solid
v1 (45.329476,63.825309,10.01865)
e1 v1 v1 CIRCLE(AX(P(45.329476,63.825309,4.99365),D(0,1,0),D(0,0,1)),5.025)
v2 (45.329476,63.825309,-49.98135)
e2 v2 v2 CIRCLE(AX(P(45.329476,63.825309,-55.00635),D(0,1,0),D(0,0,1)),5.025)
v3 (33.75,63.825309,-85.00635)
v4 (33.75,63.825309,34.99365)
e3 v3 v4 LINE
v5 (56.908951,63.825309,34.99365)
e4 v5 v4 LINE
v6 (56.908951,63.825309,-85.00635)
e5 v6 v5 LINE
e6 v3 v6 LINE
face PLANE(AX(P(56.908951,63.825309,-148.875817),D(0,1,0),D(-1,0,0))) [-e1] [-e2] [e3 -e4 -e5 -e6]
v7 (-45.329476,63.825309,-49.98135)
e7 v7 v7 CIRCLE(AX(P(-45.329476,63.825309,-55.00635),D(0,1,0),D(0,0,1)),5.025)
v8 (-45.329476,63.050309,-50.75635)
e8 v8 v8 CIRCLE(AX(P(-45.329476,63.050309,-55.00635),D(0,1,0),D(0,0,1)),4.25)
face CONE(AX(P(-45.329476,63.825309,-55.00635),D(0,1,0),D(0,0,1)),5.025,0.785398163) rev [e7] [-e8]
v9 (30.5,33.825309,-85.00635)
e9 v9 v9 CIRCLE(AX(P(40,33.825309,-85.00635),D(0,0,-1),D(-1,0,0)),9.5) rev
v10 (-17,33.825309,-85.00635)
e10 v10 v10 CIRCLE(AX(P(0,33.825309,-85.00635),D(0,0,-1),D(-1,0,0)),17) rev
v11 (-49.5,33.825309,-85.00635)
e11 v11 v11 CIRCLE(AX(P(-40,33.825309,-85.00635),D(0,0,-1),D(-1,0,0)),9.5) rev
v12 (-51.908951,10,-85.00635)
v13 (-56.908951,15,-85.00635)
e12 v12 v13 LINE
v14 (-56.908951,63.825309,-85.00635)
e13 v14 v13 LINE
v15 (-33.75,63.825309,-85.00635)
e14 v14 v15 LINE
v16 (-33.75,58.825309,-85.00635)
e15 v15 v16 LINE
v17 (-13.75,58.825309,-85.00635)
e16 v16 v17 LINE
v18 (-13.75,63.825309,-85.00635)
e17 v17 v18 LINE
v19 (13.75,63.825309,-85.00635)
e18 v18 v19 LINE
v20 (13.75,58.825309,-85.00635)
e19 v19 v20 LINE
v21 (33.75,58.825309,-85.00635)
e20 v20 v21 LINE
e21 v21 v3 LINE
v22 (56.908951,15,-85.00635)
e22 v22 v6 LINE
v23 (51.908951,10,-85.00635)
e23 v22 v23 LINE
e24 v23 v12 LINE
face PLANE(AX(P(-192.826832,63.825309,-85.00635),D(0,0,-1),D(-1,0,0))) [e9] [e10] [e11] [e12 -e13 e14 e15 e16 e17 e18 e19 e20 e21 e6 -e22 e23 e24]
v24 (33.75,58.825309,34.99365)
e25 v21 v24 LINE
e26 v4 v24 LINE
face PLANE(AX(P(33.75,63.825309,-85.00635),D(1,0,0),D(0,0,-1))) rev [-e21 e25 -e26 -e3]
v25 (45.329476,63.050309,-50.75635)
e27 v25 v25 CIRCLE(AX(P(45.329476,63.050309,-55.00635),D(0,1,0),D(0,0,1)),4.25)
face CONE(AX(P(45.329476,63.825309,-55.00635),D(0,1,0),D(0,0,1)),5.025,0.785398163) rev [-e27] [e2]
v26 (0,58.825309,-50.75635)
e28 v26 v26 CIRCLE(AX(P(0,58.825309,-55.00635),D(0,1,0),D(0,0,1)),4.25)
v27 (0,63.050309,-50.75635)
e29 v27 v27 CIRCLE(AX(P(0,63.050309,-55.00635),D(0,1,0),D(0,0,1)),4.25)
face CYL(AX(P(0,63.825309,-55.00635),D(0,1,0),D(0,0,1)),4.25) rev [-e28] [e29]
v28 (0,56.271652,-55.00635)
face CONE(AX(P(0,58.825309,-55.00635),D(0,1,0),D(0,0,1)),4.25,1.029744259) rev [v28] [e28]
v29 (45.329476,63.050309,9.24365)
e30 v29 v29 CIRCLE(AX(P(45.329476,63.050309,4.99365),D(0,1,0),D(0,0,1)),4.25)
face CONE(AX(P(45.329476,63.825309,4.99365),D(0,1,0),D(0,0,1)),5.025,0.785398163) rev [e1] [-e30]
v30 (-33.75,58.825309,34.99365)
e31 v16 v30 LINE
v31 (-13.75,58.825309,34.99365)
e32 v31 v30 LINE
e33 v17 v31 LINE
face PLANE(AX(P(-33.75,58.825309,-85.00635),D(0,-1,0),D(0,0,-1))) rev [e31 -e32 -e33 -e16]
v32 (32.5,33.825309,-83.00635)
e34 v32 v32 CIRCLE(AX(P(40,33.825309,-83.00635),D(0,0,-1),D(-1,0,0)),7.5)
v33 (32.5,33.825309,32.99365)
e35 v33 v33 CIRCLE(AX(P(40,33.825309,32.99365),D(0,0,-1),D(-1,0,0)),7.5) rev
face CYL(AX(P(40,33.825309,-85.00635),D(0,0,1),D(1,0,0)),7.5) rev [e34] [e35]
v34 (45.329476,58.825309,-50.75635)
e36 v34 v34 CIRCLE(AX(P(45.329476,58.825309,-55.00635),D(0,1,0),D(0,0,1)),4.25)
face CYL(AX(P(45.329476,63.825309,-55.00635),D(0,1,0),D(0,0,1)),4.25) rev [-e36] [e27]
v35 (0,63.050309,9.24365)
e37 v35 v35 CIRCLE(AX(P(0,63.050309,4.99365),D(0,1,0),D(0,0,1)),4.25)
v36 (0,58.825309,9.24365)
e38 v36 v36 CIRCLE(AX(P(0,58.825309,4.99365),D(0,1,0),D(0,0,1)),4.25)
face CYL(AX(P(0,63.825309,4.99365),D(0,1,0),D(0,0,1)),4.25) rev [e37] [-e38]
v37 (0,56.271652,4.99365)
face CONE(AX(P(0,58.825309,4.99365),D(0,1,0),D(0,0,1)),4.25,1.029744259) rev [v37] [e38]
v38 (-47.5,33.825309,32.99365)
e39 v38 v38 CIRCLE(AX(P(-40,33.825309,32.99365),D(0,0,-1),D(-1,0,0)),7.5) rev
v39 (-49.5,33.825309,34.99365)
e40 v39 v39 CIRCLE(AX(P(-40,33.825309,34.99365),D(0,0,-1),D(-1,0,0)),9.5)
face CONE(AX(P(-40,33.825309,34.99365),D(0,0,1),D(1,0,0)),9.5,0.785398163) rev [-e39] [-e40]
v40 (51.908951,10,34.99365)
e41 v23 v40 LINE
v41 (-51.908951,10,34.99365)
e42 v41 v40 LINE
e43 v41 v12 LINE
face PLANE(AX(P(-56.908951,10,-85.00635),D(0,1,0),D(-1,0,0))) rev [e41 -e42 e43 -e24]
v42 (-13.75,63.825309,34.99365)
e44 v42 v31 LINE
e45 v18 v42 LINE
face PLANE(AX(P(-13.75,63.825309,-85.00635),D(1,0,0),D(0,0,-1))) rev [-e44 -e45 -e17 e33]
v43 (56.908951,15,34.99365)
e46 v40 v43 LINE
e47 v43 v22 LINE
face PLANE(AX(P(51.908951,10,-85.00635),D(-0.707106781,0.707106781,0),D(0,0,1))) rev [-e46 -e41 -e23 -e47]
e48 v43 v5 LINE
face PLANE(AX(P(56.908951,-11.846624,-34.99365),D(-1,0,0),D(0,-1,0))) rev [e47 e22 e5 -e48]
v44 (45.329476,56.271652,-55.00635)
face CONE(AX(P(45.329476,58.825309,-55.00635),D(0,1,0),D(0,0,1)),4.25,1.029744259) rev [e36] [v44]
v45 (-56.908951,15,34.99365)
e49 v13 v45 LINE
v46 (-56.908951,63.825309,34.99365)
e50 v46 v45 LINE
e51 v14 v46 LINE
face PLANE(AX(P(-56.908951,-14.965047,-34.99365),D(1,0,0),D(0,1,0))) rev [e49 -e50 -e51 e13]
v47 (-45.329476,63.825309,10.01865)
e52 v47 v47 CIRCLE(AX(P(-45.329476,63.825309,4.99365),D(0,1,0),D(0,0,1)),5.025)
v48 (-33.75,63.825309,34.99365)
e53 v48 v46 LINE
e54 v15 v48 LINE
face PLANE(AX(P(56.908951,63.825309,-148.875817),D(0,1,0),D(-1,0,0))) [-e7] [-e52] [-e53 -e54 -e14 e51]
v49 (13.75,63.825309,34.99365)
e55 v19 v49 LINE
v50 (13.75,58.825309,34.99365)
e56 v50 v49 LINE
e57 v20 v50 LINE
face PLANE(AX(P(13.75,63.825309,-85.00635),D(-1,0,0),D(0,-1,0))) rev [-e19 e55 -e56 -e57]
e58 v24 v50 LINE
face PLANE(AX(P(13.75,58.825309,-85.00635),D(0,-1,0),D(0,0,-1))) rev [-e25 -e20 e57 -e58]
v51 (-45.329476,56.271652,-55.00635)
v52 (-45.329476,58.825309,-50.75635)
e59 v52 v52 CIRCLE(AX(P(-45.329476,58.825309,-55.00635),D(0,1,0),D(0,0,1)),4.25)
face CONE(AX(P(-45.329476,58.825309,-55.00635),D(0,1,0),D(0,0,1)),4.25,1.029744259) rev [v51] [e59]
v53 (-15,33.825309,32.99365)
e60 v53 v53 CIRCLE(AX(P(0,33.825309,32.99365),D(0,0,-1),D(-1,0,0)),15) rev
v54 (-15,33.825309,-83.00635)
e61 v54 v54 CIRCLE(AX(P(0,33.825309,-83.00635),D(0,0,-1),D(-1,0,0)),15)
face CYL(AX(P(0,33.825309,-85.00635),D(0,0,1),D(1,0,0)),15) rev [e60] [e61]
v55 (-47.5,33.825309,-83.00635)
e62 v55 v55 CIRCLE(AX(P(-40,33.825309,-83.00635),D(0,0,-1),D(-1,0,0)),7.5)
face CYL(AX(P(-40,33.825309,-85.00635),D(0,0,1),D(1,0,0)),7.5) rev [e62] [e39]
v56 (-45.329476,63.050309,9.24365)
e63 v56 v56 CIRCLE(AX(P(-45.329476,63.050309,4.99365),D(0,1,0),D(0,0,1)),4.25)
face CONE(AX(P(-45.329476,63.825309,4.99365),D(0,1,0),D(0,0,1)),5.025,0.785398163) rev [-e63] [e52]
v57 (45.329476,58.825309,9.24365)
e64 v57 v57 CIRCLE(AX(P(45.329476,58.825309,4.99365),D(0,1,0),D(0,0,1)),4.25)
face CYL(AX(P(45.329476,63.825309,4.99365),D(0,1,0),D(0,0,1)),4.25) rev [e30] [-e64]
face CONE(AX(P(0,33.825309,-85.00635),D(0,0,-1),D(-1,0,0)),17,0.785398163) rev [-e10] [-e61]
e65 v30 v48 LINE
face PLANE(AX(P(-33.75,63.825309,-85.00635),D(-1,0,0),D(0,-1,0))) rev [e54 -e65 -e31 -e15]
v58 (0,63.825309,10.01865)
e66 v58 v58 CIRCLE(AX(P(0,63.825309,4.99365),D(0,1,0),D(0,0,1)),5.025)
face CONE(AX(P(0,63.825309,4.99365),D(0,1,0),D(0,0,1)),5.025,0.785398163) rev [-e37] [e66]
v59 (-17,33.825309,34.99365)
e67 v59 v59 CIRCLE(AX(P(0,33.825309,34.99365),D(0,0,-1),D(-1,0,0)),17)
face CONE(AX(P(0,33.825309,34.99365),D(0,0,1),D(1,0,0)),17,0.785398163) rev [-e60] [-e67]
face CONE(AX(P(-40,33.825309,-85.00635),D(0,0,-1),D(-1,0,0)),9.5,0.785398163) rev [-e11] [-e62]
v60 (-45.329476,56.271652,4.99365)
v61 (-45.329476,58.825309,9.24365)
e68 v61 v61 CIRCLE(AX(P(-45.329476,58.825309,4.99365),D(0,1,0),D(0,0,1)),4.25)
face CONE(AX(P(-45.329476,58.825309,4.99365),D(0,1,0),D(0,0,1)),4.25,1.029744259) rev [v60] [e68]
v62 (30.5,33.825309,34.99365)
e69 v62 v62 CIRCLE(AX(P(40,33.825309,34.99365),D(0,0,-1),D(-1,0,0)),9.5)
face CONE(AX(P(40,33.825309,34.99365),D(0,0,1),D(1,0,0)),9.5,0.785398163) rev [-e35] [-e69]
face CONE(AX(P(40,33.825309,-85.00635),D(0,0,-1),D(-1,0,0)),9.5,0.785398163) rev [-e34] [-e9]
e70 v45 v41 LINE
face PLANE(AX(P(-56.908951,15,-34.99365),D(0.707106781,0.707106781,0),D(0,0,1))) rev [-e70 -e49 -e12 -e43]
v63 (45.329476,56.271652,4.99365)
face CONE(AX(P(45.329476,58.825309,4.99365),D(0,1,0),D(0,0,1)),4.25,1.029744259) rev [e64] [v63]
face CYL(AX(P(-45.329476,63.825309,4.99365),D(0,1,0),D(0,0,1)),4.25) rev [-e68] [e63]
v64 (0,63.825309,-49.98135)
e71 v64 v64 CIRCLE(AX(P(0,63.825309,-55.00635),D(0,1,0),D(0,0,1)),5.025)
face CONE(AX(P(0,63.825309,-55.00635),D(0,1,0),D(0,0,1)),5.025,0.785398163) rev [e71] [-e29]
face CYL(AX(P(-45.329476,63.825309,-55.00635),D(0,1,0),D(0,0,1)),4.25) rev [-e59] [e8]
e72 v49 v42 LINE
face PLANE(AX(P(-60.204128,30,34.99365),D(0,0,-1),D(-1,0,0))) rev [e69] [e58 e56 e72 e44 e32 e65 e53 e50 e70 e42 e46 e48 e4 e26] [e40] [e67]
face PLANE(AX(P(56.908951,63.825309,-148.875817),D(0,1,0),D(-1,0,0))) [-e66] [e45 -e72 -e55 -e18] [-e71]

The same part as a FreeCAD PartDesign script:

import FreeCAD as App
import Part
import Sketcher
from FreeCAD import Vector


def edges_at(feature, points):
    """Names of the edges that pass closest to the given points."""
    edges = feature.Shape.Edges
    near = lambda p: min(range(len(edges)), key=lambda i: edges[i].distToShape(Part.Vertex(*p))[0])
    return sorted({f"Edge{near(p) + 1}" for p in points})

doc = App.newDocument("Part")
body = doc.addObject("PartDesign::Body", "Body")

# Sketch on XZ plane
sketch1 = body.newObject("Sketcher::SketchObject", "Sketch")
sketch1.AttachmentSupport = (doc.getObject("XZ_Plane"), [""])
sketch1.MapMode = "FlatFace"
sketch1.addGeometry([
    Part.LineSegment(Vector(-60, -35, 0), Vector(-60, 35, 0)),
    Part.LineSegment(Vector(-60, 35, 0), Vector(60, 35, 0)),
    Part.LineSegment(Vector(60, 35, 0), Vector(60, -35, 0)),
    Part.LineSegment(Vector(60, -35, 0), Vector(-60, -35, 0)),
], False)
sketch1.addConstraint([
    Sketcher.Constraint("Coincident", 0, 2, 1, 1),
    Sketcher.Constraint("Coincident", 1, 2, 2, 1),
    Sketcher.Constraint("Coincident", 2, 2, 3, 1),
    Sketcher.Constraint("Coincident", 3, 2, 0, 1),
    Sketcher.Constraint("Vertical", 0),
    Sketcher.Constraint("Horizontal", 1),
    Sketcher.Constraint("Vertical", 2),
    Sketcher.Constraint("Horizontal", 3),
    Sketcher.Constraint("Symmetric", 0, 2, 2, 2, -1, 1),
    Sketcher.Constraint("DistanceY", 0, 1, 0, 2, 69.987299),
    Sketcher.Constraint("DistanceX", 1, 1, 1, 2, 120.408257),
])
pad1 = body.newObject("PartDesign::Pad", "Pad")
pad1.Profile = sketch1
pad1.Length = 30
pad1.Reversed = True

# Sketch on XY plane
sketch2 = body.newObject("Sketcher::SketchObject", "Sketch001")
sketch2.AttachmentSupport = (doc.getObject("XY_Plane"), [""])
sketch2.MapMode = "FlatFace"
sketch2.AttachmentOffset = App.Placement(Vector(0, 0, 34.99365), App.Rotation())
sketch2.addGeometry([
    Part.LineSegment(Vector(-66, 34, 0), Vector(-66, -15, 0)),  # 0
    Part.LineSegment(Vector(-66, -15, 0), Vector(-57, -15, 0)),  # 1
    Part.LineSegment(Vector(-57, -15, 0), Vector(-57, 34, 0)),  # 2
    Part.LineSegment(Vector(-57, 34, 0), Vector(-66, 34, 0)),  # 3
    Part.LineSegment(Vector(57, 34, 0), Vector(57, -12, 0)),  # 4
    Part.LineSegment(Vector(57, -12, 0), Vector(63, -12, 0)),  # 5
    Part.LineSegment(Vector(63, -12, 0), Vector(64, 34, 0)),  # 6
    Part.LineSegment(Vector(64, 34, 0), Vector(57, 34, 0)),  # 7
], False)
sketch2.addConstraint([
    Sketcher.Constraint("Coincident", 0, 2, 1, 1),
    Sketcher.Constraint("Coincident", 1, 2, 2, 1),
    Sketcher.Constraint("Coincident", 2, 2, 3, 1),
    Sketcher.Constraint("Coincident", 3, 2, 0, 1),
    Sketcher.Constraint("Coincident", 4, 2, 5, 1),
    Sketcher.Constraint("Coincident", 5, 2, 6, 1),
    Sketcher.Constraint("Coincident", 6, 2, 7, 1),
    Sketcher.Constraint("Coincident", 7, 2, 4, 1),
    Sketcher.Constraint("Vertical", 0),
    Sketcher.Constraint("Horizontal", 1),
    Sketcher.Constraint("Vertical", 2),
    Sketcher.Constraint("Horizontal", 3),
    Sketcher.Constraint("Vertical", 4),
    Sketcher.Constraint("Horizontal", 5),
    Sketcher.Constraint("Horizontal", 7),
    Sketcher.Constraint("Symmetric", 2, 2, 7, 2, -2),
    Sketcher.Constraint("DistanceY", 0, 2, 0, 1, 48.745872),
    Sketcher.Constraint("DistanceY", 4, 2, 4, 1, 45.627449),
    Sketcher.Constraint("DistanceX", 1, 1, 1, 2, 9.395516),
    Sketcher.Constraint("DistanceX", 5, 1, 5, 2, 6.004442),
    Sketcher.Constraint("DistanceX", 7, 2, 7, 1, 6.775573),
    Sketcher.Constraint("DistanceX", 1, 2, -1, 1, 56.908951),
    Sketcher.Constraint("DistanceY", 0, 2, -1, 1, 14.965047),
])
pocket1 = body.newObject("PartDesign::Pocket", "Pocket")
pocket1.Profile = sketch2
pocket1.Type = "ThroughAll"
pocket1.Midplane = True

# Sketch on XY plane
sketch3 = body.newObject("Sketcher::SketchObject", "Sketch002")
sketch3.AttachmentSupport = (doc.getObject("XY_Plane"), [""])
sketch3.MapMode = "FlatFace"
sketch3.AttachmentOffset = App.Placement(Vector(0, 0, 34.99365), App.Rotation())
sketch3.addGeometry([
    Part.LineSegment(Vector(-57, 60, 0), Vector(-57, 30, 0)),
    Part.LineSegment(Vector(-57, 30, 0), Vector(57, 30, 0)),
    Part.LineSegment(Vector(57, 30, 0), Vector(57, 60, 0)),
    Part.LineSegment(Vector(57, 60, 0), Vector(-57, 60, 0)),
], False)
sketch3.addConstraint([
    Sketcher.Constraint("Coincident", 0, 2, 1, 1),
    Sketcher.Constraint("Coincident", 1, 2, 2, 1),
    Sketcher.Constraint("Coincident", 2, 2, 3, 1),
    Sketcher.Constraint("Coincident", 3, 2, 0, 1),
    Sketcher.Constraint("Vertical", 0),
    Sketcher.Constraint("Horizontal", 1),
    Sketcher.Constraint("Vertical", 2),
    Sketcher.Constraint("Horizontal", 3),
    Sketcher.Constraint("DistanceY", 0, 2, 0, 1, 30.0),
    Sketcher.Constraint("DistanceY", -1, 1, 0, 2, 30.0),
    Sketcher.Constraint("DistanceX", 1, 1, 1, 2, 113.817903),
    Sketcher.Constraint("DistanceX", 0, 2, -1, 1, 56.908951),
])
pad2 = body.newObject("PartDesign::Pad", "Pad001")
pad2.Profile = sketch3
pad2.Length = 69.987299
pad2.Reversed = True

# Sketch on XY plane
sketch4 = body.newObject("Sketcher::SketchObject", "Sketch003")
sketch4.AttachmentSupport = (doc.getObject("XY_Plane"), [""])
sketch4.MapMode = "FlatFace"
sketch4.AttachmentOffset = App.Placement(Vector(0, 0, 34.99365), App.Rotation())
sketch4.addGeometry([
    Part.LineSegment(Vector(-56.9, 63.8, 0), Vector(-56.9, 60, 0)),
    Part.LineSegment(Vector(-56.9, 60, 0), Vector(56.9, 60, 0)),
    Part.LineSegment(Vector(56.9, 60, 0), Vector(56.9, 63.8, 0)),
    Part.LineSegment(Vector(56.9, 63.8, 0), Vector(-56.9, 63.8, 0)),
], False)
sketch4.addConstraint([
    Sketcher.Constraint("Coincident", 0, 2, 1, 1),
    Sketcher.Constraint("Coincident", 1, 2, 2, 1),
    Sketcher.Constraint("Coincident", 2, 2, 3, 1),
    Sketcher.Constraint("Coincident", 3, 2, 0, 1),
    Sketcher.Constraint("Vertical", 0),
    Sketcher.Constraint("Horizontal", 1),
    Sketcher.Constraint("Vertical", 2),
    Sketcher.Constraint("Horizontal", 3),
    Sketcher.Constraint("DistanceY", -1, 1, 0, 2, 60.0),
    Sketcher.Constraint("DistanceY", 0, 2, 0, 1, 3.825309),
    Sketcher.Constraint("DistanceX", 1, 1, 1, 2, 113.817903),
    Sketcher.Constraint("DistanceX", 0, 2, -1, 1, 56.908951),
])
pad3 = body.newObject("PartDesign::Pad", "Pad002")
pad3.Profile = sketch4
pad3.Length = 69.987299
pad3.Reversed = True

# Sketch on YZ plane
sketch5 = body.newObject("Sketcher::SketchObject", "Sketch004")
sketch5.AttachmentSupport = (doc.getObject("YZ_Plane"), [""])
sketch5.MapMode = "FlatFace"
sketch5.AttachmentOffset = App.Placement(Vector(0, 0, 56.908951), App.Rotation())
sketch5.addGeometry([
    Part.LineSegment(Vector(64, 35, 0), Vector(0, 35, 0)),
    Part.LineSegment(Vector(0, 35, 0), Vector(0, -85, 0)),
    Part.LineSegment(Vector(0, -85, 0), Vector(64, -85, 0)),
    Part.LineSegment(Vector(64, -85, 0), Vector(64, 35, 0)),
], False)
sketch5.addConstraint([
    Sketcher.Constraint("Coincident", 0, 2, 1, 1),
    Sketcher.Constraint("Coincident", 1, 2, 2, 1),
    Sketcher.Constraint("Coincident", 2, 2, 3, 1),
    Sketcher.Constraint("Coincident", 3, 2, 0, 1),
    Sketcher.Constraint("Horizontal", 0),
    Sketcher.Constraint("Vertical", 1),
    Sketcher.Constraint("Horizontal", 2),
    Sketcher.Constraint("Vertical", 3),
    Sketcher.Constraint("PointOnObject", 0, 2, -2),
    Sketcher.Constraint("DistanceY", 1, 2, 1, 1, 120.0),
    Sketcher.Constraint("DistanceX", 0, 2, 0, 1, 63.825309),
    Sketcher.Constraint("DistanceY", -1, 1, 0, 2, 34.99365),
])
pad4 = body.newObject("PartDesign::Pad", "Pad003")
pad4.Profile = sketch5
pad4.Length = 113.817903
pad4.Reversed = True

# Sketch on XY plane
sketch6 = body.newObject("Sketcher::SketchObject", "Sketch005")
sketch6.AttachmentSupport = (doc.getObject("XY_Plane"), [""])
sketch6.MapMode = "FlatFace"
sketch6.AttachmentOffset = App.Placement(Vector(0, 0, 34.99365), App.Rotation())
sketch6.addGeometry([
    Part.Circle(Vector(0, 34, 0), Vector(0, 0, 1), 15),
    Part.Circle(Vector(-40, 34, 0), Vector(0, 0, 1), 8),
    Part.Circle(Vector(40, 34, 0), Vector(0, 0, 1), 8),
], False)
sketch6.addConstraint([
    Sketcher.Constraint("Equal", 1, 2),
    Sketcher.Constraint("Symmetric", 1, 3, 2, 3, -2),
    Sketcher.Constraint("PointOnObject", 0, 3, -2),
    Sketcher.Constraint("Horizontal", 0, 3, 1, 3),
    Sketcher.Constraint("Diameter", 0, 30.0),
    Sketcher.Constraint("Diameter", 1, 15.0),
    Sketcher.Constraint("DistanceX", 1, 3, -1, 1, 40.0),
    Sketcher.Constraint("DistanceY", -1, 1, 0, 3, 33.825309),
])
pocket2 = body.newObject("PartDesign::Pocket", "Pocket001")
pocket2.Profile = sketch6
pocket2.Type = "ThroughAll"
pocket2.Midplane = True

# Sketch on XY plane
sketch7 = body.newObject("Sketcher::SketchObject", "Sketch006")
sketch7.AttachmentSupport = (doc.getObject("XY_Plane"), [""])
sketch7.MapMode = "FlatFace"
sketch7.AttachmentOffset = App.Placement(Vector(0, 0, 34.99365), App.Rotation())
sketch7.addGeometry([
    Part.LineSegment(Vector(-57, 10, 0), Vector(-57, -1, 0)),
    Part.LineSegment(Vector(-57, -1, 0), Vector(57, -1, 0)),
    Part.LineSegment(Vector(57, -1, 0), Vector(57, 10, 0)),
    Part.LineSegment(Vector(57, 10, 0), Vector(-57, 10, 0)),
], False)
sketch7.addConstraint([
    Sketcher.Constraint("Coincident", 0, 2, 1, 1),
    Sketcher.Constraint("Coincident", 1, 2, 2, 1),
    Sketcher.Constraint("Coincident", 2, 2, 3, 1),
    Sketcher.Constraint("Coincident", 3, 2, 0, 1),
    Sketcher.Constraint("Vertical", 0),
    Sketcher.Constraint("Horizontal", 1),
    Sketcher.Constraint("Vertical", 2),
    Sketcher.Constraint("Horizontal", 3),
    Sketcher.Constraint("DistanceY", -1, 1, 2, 2, 10.0),
    Sketcher.Constraint("DistanceX", 1, 1, 1, 2, 113.817903),
    Sketcher.Constraint("DistanceY", 0, 2, 0, 1, 11.234458),
    Sketcher.Constraint("DistanceX", 0, 2, -1, 1, 56.908951),
])
pocket3 = body.newObject("PartDesign::Pocket", "Pocket002")
pocket3.Profile = sketch7
pocket3.Type = "ThroughAll"
pocket3.Midplane = True

# Sketch on XY plane
sketch8 = body.newObject("Sketcher::SketchObject", "Sketch007")
sketch8.AttachmentSupport = (doc.getObject("XY_Plane"), [""])
sketch8.MapMode = "FlatFace"
sketch8.AttachmentOffset = App.Placement(Vector(0, 0, 34.99365), App.Rotation())
sketch8.addGeometry([
    Part.LineSegment(Vector(-34, 64, 0), Vector(-34, 59, 0)),  # 0
    Part.LineSegment(Vector(-34, 59, 0), Vector(-14, 59, 0)),  # 1
    Part.LineSegment(Vector(-14, 59, 0), Vector(-14, 64, 0)),  # 2
    Part.LineSegment(Vector(-14, 64, 0), Vector(-34, 64, 0)),  # 3
    Part.LineSegment(Vector(14, 64, 0), Vector(14, 59, 0)),  # 4
    Part.LineSegment(Vector(14, 59, 0), Vector(34, 59, 0)),  # 5
    Part.LineSegment(Vector(34, 59, 0), Vector(34, 64, 0)),  # 6
    Part.LineSegment(Vector(34, 64, 0), Vector(14, 64, 0)),  # 7
], False)
sketch8.addConstraint([
    Sketcher.Constraint("Coincident", 0, 2, 1, 1),
    Sketcher.Constraint("Coincident", 1, 2, 2, 1),
    Sketcher.Constraint("Coincident", 2, 2, 3, 1),
    Sketcher.Constraint("Coincident", 3, 2, 0, 1),
    Sketcher.Constraint("Coincident", 4, 2, 5, 1),
    Sketcher.Constraint("Coincident", 5, 2, 6, 1),
    Sketcher.Constraint("Coincident", 6, 2, 7, 1),
    Sketcher.Constraint("Coincident", 7, 2, 4, 1),
    Sketcher.Constraint("Vertical", 0),
    Sketcher.Constraint("Horizontal", 1),
    Sketcher.Constraint("Vertical", 2),
    Sketcher.Constraint("Horizontal", 3),
    Sketcher.Constraint("Vertical", 4),
    Sketcher.Constraint("Horizontal", 5),
    Sketcher.Constraint("Vertical", 6),
    Sketcher.Constraint("Horizontal", 7),
    Sketcher.Constraint("Symmetric", 1, 2, 4, 2, -2),
    Sketcher.Constraint("Symmetric", 3, 2, 6, 2, -2),
    Sketcher.Constraint("DistanceX", 1, 1, 1, 2, 20.0),
    Sketcher.Constraint("DistanceY", 0, 2, 0, 1, 5.0),
    Sketcher.Constraint("DistanceX", 1, 2, 4, 2, 27.5),
    Sketcher.Constraint("DistanceY", -1, 1, 0, 2, 58.825309),
])
pocket4 = body.newObject("PartDesign::Pocket", "Pocket003")
pocket4.Profile = sketch8
pocket4.Type = "ThroughAll"
pocket4.Midplane = True
doc.recompute()

chamfer = body.newObject("PartDesign::Chamfer", "Chamfer")
chamfer.Base = (pocket4, edges_at(pocket4, [(-56.909, 10, -25.006), (56.909, 10, -25.006)]))
chamfer.Size = 5
doc.recompute()

chamfer2 = body.newObject("PartDesign::Chamfer", "Chamfer001")
chamfer2.Base = (chamfer, edges_at(chamfer, [
    (32.5, 33.825, -85.006),
    (32.5, 33.825, 34.994),
    (-47.5, 33.825, -85.006),
    (-47.5, 33.825, 34.994),
    (-15, 33.825, -85.006),
    (-15, 33.825, 34.994),
]))
chamfer2.Size = 2

# Sketch on XZ plane
sketch9 = body.newObject("Sketcher::SketchObject", "Sketch008")
sketch9.AttachmentSupport = (doc.getObject("XZ_Plane"), [""])
sketch9.MapMode = "FlatFace"
sketch9.AttachmentOffset = App.Placement(Vector(0, 0, -63.825309), App.Rotation())
sketch9.addGeometry([
    Part.Circle(Vector(-45.3, -55, 0), Vector(0, 0, 1), 4.2),  # 0
    Part.Circle(Vector(-45.3, 5, 0), Vector(0, 0, 1), 4.2),  # 1
    Part.Circle(Vector(0, 5, 0), Vector(0, 0, 1), 4.2),  # 2
    Part.Circle(Vector(45.3, 5, 0), Vector(0, 0, 1), 4.2),  # 3
    Part.Circle(Vector(45.3, -55, 0), Vector(0, 0, 1), 4.2),  # 4
    Part.Circle(Vector(0, -55, 0), Vector(0, 0, 1), 4.2),  # 5
], False)
sketch9.addConstraint([
    Sketcher.Constraint("Equal", 0, 1),
    Sketcher.Constraint("Equal", 1, 2),
    Sketcher.Constraint("Equal", 2, 3),
    Sketcher.Constraint("Equal", 3, 4),
    Sketcher.Constraint("Equal", 4, 5),
    Sketcher.Constraint("Symmetric", 1, 3, 3, 3, -2),
    Sketcher.Constraint("Symmetric", 0, 3, 4, 3, -2),
    Sketcher.Constraint("PointOnObject", 2, 3, -2),
    Sketcher.Constraint("PointOnObject", 5, 3, -2),
    Sketcher.Constraint("Horizontal", 1, 3, 2, 3),
    Sketcher.Constraint("Horizontal", 4, 3, 5, 3),
    Sketcher.Constraint("Vertical", 0, 3, 1, 3),
    Sketcher.Constraint("Diameter", 0, 8.5),
    Sketcher.Constraint("DistanceY", 0, 3, 1, 3, 60.0),
    Sketcher.Constraint("DistanceY", 0, 3, -1, 1, 55.00635),
    Sketcher.Constraint("DistanceX", 1, 3, 3, 3, 90.658951),
])
doc.recompute()
hole = body.newObject("PartDesign::Hole", "Hole")
hole.Profile = sketch9
hole.ThreadType = "None"
hole.Diameter = 8.5
hole.DepthType = "Dimension"
hole.Depth = 5
hole.DrillPoint = "Angled"
hole.DrillPointAngle = 118
hole.HoleCutType = "Countersink"
hole.HoleCutDiameter = 10.05
hole.HoleCutCountersinkAngle = 90
hole.Reversed = True

doc.recompute()
